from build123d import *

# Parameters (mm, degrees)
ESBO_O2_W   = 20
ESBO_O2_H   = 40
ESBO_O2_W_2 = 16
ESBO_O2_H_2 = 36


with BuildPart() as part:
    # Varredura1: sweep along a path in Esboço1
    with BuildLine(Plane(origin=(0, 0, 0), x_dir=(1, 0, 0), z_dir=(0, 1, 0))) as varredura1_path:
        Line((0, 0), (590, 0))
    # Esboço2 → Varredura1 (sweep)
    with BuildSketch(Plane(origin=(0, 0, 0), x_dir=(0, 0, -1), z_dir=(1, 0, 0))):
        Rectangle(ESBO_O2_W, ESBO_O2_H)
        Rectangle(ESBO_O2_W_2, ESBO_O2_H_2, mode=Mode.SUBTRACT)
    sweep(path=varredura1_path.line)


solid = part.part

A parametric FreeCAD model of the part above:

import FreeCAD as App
import Part
import Sketcher

V = App.Vector
Q = App.Units.Quantity


def add_polygon(sketch, points):
    """Adds a closed chain of lines whose ends are joined by coincident constraints."""
    first, n = sketch.GeometryCount, len(points)
    for a, b in zip(points, points[1:] + points[:1]):
        sketch.addGeometry(Part.LineSegment(App.Vector(*a, 0), App.Vector(*b, 0)), False)
    for i in range(n):
        sketch.addConstraint(Sketcher.Constraint("Coincident", first + i, 2, first + (i + 1) % n, 1))

doc = App.newDocument("Part")
params = doc.addObject("Spreadsheet::Sheet", "Params")
for row, (alias, value) in enumerate([
    ("sketch1_width", "40 mm"),
    ("sketch1_width2", "36 mm"),
    ("sketch1_height", "20 mm"),
    ("sketch1_height2", "16 mm"),
    ("sketch2_width", "590 mm"),
], start=1):
    params.set(f"A{row}", alias)
    params.set(f"B{row}", "=" + value)
    params.setAlias(f"B{row}", alias)

body = doc.addObject("PartDesign::Body", "Body")

# Sketch on YZ plane
sketch1 = body.newObject("Sketcher::SketchObject", "Sketch")
sketch1.AttachmentSupport = (doc.getObject("YZ_Plane"), [""])
sketch1.MapMode = "FlatFace"
add_polygon(sketch1, [(20, 10), (-20, 10), (-20, -10), (20, -10)])  # lines 0-3
add_polygon(sketch1, [(-18, -8), (-18, 8), (18, 8), (18, -8)])  # lines 4-7
sketch1.addConstraint([
    Sketcher.Constraint("Horizontal", 0),
    Sketcher.Constraint("Vertical", 1),
    Sketcher.Constraint("Horizontal", 2),
    Sketcher.Constraint("Vertical", 3),
    Sketcher.Constraint("Vertical", 4),
    Sketcher.Constraint("Horizontal", 5),
    Sketcher.Constraint("Vertical", 6),
    Sketcher.Constraint("Horizontal", 7),
    Sketcher.Constraint("Symmetric", 0, 2, 2, 2, -1, 1),
    Sketcher.Constraint("Symmetric", 4, 2, 6, 2, -1, 1),
    Sketcher.Constraint("DistanceX", 0, 2, 0, 1, Q("40 mm")),
    Sketcher.Constraint("DistanceX", 5, 1, 5, 2, Q("36 mm")),
    Sketcher.Constraint("DistanceY", 1, 2, 1, 1, Q("20 mm")),
    Sketcher.Constraint("DistanceY", 4, 1, 4, 2, Q("16 mm")),
])
sketch1.setExpression("Constraints[18]", "Params.sketch1_width")
sketch1.setExpression("Constraints[19]", "Params.sketch1_width2")
sketch1.setExpression("Constraints[20]", "Params.sketch1_height")
sketch1.setExpression("Constraints[21]", "Params.sketch1_height2")

# Sketch on XY plane
sketch2 = body.newObject("Sketcher::SketchObject", "Sketch001")
sketch2.AttachmentSupport = (doc.getObject("XY_Plane"), [""])
sketch2.MapMode = "FlatFace"
sketch2.addGeometry(Part.LineSegment(V(0, 0, 0), V(590, 0, 0)), False)
sketch2.addConstraint([
    Sketcher.Constraint("Horizontal", 0),
    Sketcher.Constraint("Coincident", 0, 1, -1, 1),
    Sketcher.Constraint("DistanceX", 0, 1, 0, 2, Q("590 mm")),
])
sketch2.setExpression("Constraints[2]", "Params.sketch2_width")
doc.recompute()

additivepipe = body.newObject("PartDesign::AdditivePipe", "AdditivePipe")
additivepipe.Profile = sketch1
additivepipe.Spine = (sketch2, ["Edge1"])

doc.recompute()
